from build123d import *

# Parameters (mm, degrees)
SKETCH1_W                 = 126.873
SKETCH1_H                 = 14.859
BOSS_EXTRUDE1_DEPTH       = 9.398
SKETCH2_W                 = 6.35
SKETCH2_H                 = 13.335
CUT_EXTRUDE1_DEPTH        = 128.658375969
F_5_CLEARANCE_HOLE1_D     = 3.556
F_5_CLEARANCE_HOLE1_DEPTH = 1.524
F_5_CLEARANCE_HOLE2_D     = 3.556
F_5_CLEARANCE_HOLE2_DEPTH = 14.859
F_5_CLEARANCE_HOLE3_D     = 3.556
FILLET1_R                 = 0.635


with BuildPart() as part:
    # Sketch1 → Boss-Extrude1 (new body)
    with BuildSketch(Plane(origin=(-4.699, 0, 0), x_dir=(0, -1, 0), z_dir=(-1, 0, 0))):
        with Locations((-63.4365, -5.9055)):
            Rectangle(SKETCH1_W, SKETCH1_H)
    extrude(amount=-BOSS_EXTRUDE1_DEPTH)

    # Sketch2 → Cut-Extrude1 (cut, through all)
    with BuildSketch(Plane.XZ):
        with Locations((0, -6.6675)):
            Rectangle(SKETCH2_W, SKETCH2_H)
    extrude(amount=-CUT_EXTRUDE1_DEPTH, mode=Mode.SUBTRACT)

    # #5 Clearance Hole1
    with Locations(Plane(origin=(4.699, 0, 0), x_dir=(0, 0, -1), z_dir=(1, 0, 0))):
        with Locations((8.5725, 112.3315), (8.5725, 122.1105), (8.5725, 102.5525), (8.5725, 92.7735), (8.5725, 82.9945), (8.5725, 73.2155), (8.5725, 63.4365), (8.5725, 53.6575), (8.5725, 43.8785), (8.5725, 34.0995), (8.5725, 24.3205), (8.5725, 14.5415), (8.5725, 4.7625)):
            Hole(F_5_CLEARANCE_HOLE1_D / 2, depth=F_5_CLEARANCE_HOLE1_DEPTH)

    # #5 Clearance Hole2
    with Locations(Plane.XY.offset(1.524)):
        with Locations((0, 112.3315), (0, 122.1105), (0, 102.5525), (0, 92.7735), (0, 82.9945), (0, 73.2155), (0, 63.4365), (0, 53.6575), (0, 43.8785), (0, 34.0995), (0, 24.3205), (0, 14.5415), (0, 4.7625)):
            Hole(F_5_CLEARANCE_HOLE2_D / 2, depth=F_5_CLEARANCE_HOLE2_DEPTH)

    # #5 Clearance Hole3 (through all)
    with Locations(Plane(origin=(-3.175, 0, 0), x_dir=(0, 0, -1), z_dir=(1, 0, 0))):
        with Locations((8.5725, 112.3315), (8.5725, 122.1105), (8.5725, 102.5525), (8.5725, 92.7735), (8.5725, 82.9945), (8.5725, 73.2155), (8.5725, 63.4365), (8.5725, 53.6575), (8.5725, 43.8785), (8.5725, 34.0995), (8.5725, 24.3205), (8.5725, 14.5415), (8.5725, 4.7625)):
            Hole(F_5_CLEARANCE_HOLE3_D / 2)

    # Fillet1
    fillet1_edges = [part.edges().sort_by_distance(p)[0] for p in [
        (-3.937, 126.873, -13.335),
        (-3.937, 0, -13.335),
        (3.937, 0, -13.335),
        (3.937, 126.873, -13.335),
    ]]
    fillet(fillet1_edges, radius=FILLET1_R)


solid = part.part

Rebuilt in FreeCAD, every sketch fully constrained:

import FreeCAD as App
import Part
import Sketcher
from FreeCAD import Vector
Q = App.Units.Quantity


def edges_at(feature, points):
    """Names of the edges that pass closest to the given points."""
    edges = feature.Shape.Edges
    near = lambda p: min(range(len(edges)), key=lambda i: edges[i].distToShape(Part.Vertex(*p))[0])
    return sorted({f"Edge{near(p) + 1}" for p in points})


def add_polygon(sketch, points):
    """Adds a closed chain of lines whose ends are joined by coincident constraints."""
    first, n = sketch.GeometryCount, len(points)
    for a, b in zip(points, points[1:] + points[:1]):
        sketch.addGeometry(Part.LineSegment(App.Vector(*a, 0), App.Vector(*b, 0)), False)
    for i in range(n):
        sketch.addConstraint(Sketcher.Constraint("Coincident", first + i, 2, first + (i + 1) % n, 1))

doc = App.newDocument("Part")
body = doc.addObject("PartDesign::Body", "Body")

sketch1 = body.newObject("Sketcher::SketchObject", "Sketch")
sketch1.AttachmentSupport = (doc.getObject("YZ_Plane"), [""])
sketch1.MapMode = "FlatFace"
sketch1.AttachmentOffset = App.Placement(Vector(0, 0, -0.185 * 25.4), App.Rotation())
add_polygon(sketch1, [(126.873, 1.524), (126.873, -13.335), (0, -13.335), (0, 1.524)])
sketch1.addConstraint([
    Sketcher.Constraint("Vertical", 0),
    Sketcher.Constraint("Horizontal", 1),
    Sketcher.Constraint("Vertical", 2),
    Sketcher.Constraint("Horizontal", 3),
    Sketcher.Constraint("PointOnObject", 1, 2, -2),
    Sketcher.Constraint("DistanceX", 1, 2, 1, 1, Q("4.995 in")),
    Sketcher.Constraint("DistanceY", 0, 2, 0, 1, Q("0.585 in")),
    Sketcher.Constraint("DistanceY", -1, 1, 2, 2, Q("0.06 in")),
])
pad1 = body.newObject("PartDesign::Pad", "Pad")
pad1.Profile = sketch1
pad1.Length = Q("0.37 in")

sketch2 = body.newObject("Sketcher::SketchObject", "Sketch001")
sketch2.AttachmentSupport = (doc.getObject("XZ_Plane"), [""])
sketch2.MapMode = "FlatFace"
add_polygon(sketch2, [(-3.175, 0), (-3.175, -13.335), (3.175, -13.335), (3.175, 0)])
sketch2.addConstraint([
    Sketcher.Constraint("Vertical", 0),
    Sketcher.Constraint("Horizontal", 1),
    Sketcher.Constraint("Vertical", 2),
    Sketcher.Constraint("Horizontal", 3),
    Sketcher.Constraint("Symmetric", 2, 2, 3, 2, -1, 1),
    Sketcher.Constraint("DistanceX", 1, 1, 1, 2, Q("0.25 in")),
    Sketcher.Constraint("DistanceY", 0, 2, 0, 1, Q("0.525 in")),
])
pocket1 = body.newObject("PartDesign::Pocket", "Pocket")
pocket1.Profile = sketch2
pocket1.Type = "ThroughAll"

sketch3 = body.newObject("Sketcher::SketchObject", "Sketch002")
sketch3.AttachmentSupport = (doc.getObject("YZ_Plane"), [""])
sketch3.MapMode = "FlatFace"
sketch3.AttachmentOffset = App.Placement(Vector(0, 0, 0.185 * 25.4), App.Rotation())
sketch3.addGeometry([
    Part.Circle(Vector(112.3315, -8.5725, 0), Vector(0, 0, 1), 1.778),
    Part.Circle(Vector(122.1105, -8.5725, 0), Vector(0, 0, 1), 1.778),
    Part.Circle(Vector(102.5525, -8.5725, 0), Vector(0, 0, 1), 1.778),
    Part.Circle(Vector(92.7735, -8.5725, 0), Vector(0, 0, 1), 1.778),
    Part.Circle(Vector(82.9945, -8.5725, 0), Vector(0, 0, 1), 1.778),
    Part.Circle(Vector(73.2155, -8.5725, 0), Vector(0, 0, 1), 1.778),
    Part.Circle(Vector(63.4365, -8.5725, 0), Vector(0, 0, 1), 1.778),
    Part.Circle(Vector(53.6575, -8.5725, 0), Vector(0, 0, 1), 1.778),
    Part.Circle(Vector(43.8785, -8.5725, 0), Vector(0, 0, 1), 1.778),
    Part.Circle(Vector(34.0995, -8.5725, 0), Vector(0, 0, 1), 1.778),
    Part.Circle(Vector(24.3205, -8.5725, 0), Vector(0, 0, 1), 1.778),
    Part.Circle(Vector(14.5415, -8.5725, 0), Vector(0, 0, 1), 1.778),
    Part.Circle(Vector(4.7625, -8.5725, 0), Vector(0, 0, 1), 1.778),
], False)
sketch3.addConstraint([
    Sketcher.Constraint("Equal", 0, 1),
    Sketcher.Constraint("Equal", 1, 2),
    Sketcher.Constraint("Equal", 2, 3),
    Sketcher.Constraint("Equal", 3, 4),
    Sketcher.Constraint("Equal", 4, 5),
    Sketcher.Constraint("Equal", 5, 6),
    Sketcher.Constraint("Equal", 6, 7),
    Sketcher.Constraint("Equal", 7, 8),
    Sketcher.Constraint("Equal", 8, 9),
    Sketcher.Constraint("Equal", 9, 10),
    Sketcher.Constraint("Equal", 10, 11),
    Sketcher.Constraint("Equal", 11, 12),
    Sketcher.Constraint("Horizontal", 0, 3, 1, 3),
    Sketcher.Constraint("Horizontal", 1, 3, 2, 3),
    Sketcher.Constraint("Horizontal", 2, 3, 3, 3),
    Sketcher.Constraint("Horizontal", 3, 3, 4, 3),
    Sketcher.Constraint("Horizontal", 4, 3, 5, 3),
    Sketcher.Constraint("Horizontal", 5, 3, 6, 3),
    Sketcher.Constraint("Horizontal", 6, 3, 7, 3),
    Sketcher.Constraint("Horizontal", 7, 3, 8, 3),
    Sketcher.Constraint("Horizontal", 8, 3, 9, 3),
    Sketcher.Constraint("Horizontal", 9, 3, 10, 3),
    Sketcher.Constraint("Horizontal", 10, 3, 11, 3),
    Sketcher.Constraint("Horizontal", 11, 3, 12, 3),
    Sketcher.Constraint("Diameter", 0, Q("0.14 in")),
    Sketcher.Constraint("DistanceX", 2, 3, 1, 3, Q("0.77 in")),
    Sketcher.Constraint("DistanceX", 3, 3, 0, 3, Q("0.77 in")),
    Sketcher.Constraint("DistanceX", 4, 3, 2, 3, Q("0.77 in")),
    Sketcher.Constraint("DistanceX", 5, 3, 3, 3, Q("0.77 in")),
    Sketcher.Constraint("DistanceX", 6, 3, 4, 3, Q("0.77 in")),
    Sketcher.Constraint("DistanceX", 7, 3, 5, 3, Q("0.77 in")),
    Sketcher.Constraint("DistanceX", 8, 3, 6, 3, Q("0.77 in")),
    Sketcher.Constraint("DistanceX", 9, 3, 7, 3, Q("0.77 in")),
    Sketcher.Constraint("DistanceX", 10, 3, 8, 3, Q("0.77 in")),
    Sketcher.Constraint("DistanceX", 11, 3, 9, 3, Q("0.77 in")),
    Sketcher.Constraint("DistanceX", 12, 3, 10, 3, Q("0.77 in")),
    Sketcher.Constraint("DistanceX", -1, 1, 12, 3, Q("0.1875 in")),
    Sketcher.Constraint("DistanceX", 0, 3, 1, 3, Q("0.385 in")),
    Sketcher.Constraint("DistanceY", 0, 3, -1, 1, Q("0.3375 in")),
])
doc.recompute()
hole = body.newObject("PartDesign::Hole", "Hole")
hole.Profile = sketch3
hole.ThreadType = "None"
hole.Diameter = Q("0.14 in")
hole.DepthType = "Dimension"
hole.Depth = Q("0.06 in")
hole.DrillPoint = "Flat"

sketch4 = body.newObject("Sketcher::SketchObject", "Sketch003")
sketch4.AttachmentSupport = (doc.getObject("XY_Plane"), [""])
sketch4.MapMode = "FlatFace"
sketch4.AttachmentOffset = App.Placement(Vector(0, 0, 0.06 * 25.4), App.Rotation())
sketch4.addGeometry([
    Part.Circle(Vector(0, 112.3315, 0), Vector(0, 0, 1), 1.778),
    Part.Circle(Vector(0, 122.1105, 0), Vector(0, 0, 1), 1.778),
    Part.Circle(Vector(0, 102.5525, 0), Vector(0, 0, 1), 1.778),
    Part.Circle(Vector(0, 92.7735, 0), Vector(0, 0, 1), 1.778),
    Part.Circle(Vector(0, 82.9945, 0), Vector(0, 0, 1), 1.778),
    Part.Circle(Vector(0, 73.2155, 0), Vector(0, 0, 1), 1.778),
    Part.Circle(Vector(0, 63.4365, 0), Vector(0, 0, 1), 1.778),
    Part.Circle(Vector(0, 53.6575, 0), Vector(0, 0, 1), 1.778),
    Part.Circle(Vector(0, 43.8785, 0), Vector(0, 0, 1), 1.778),
    Part.Circle(Vector(0, 34.0995, 0), Vector(0, 0, 1), 1.778),
    Part.Circle(Vector(0, 24.3205, 0), Vector(0, 0, 1), 1.778),
    Part.Circle(Vector(0, 14.5415, 0), Vector(0, 0, 1), 1.778),
    Part.Circle(Vector(0, 4.7625, 0), Vector(0, 0, 1), 1.778),
], False)
sketch4.addConstraint([
    Sketcher.Constraint("Equal", 0, 1),
    Sketcher.Constraint("Equal", 1, 2),
    Sketcher.Constraint("Equal", 2, 3),
    Sketcher.Constraint("Equal", 3, 4),
    Sketcher.Constraint("Equal", 4, 5),
    Sketcher.Constraint("Equal", 5, 6),
    Sketcher.Constraint("Equal", 6, 7),
    Sketcher.Constraint("Equal", 7, 8),
    Sketcher.Constraint("Equal", 8, 9),
    Sketcher.Constraint("Equal", 9, 10),
    Sketcher.Constraint("Equal", 10, 11),
    Sketcher.Constraint("Equal", 11, 12),
    Sketcher.Constraint("PointOnObject", 0, 3, -2),
    Sketcher.Constraint("PointOnObject", 1, 3, -2),
    Sketcher.Constraint("PointOnObject", 2, 3, -2),
    Sketcher.Constraint("PointOnObject", 3, 3, -2),
    Sketcher.Constraint("PointOnObject", 4, 3, -2),
    Sketcher.Constraint("PointOnObject", 5, 3, -2),
    Sketcher.Constraint("PointOnObject", 6, 3, -2),
    Sketcher.Constraint("PointOnObject", 7, 3, -2),
    Sketcher.Constraint("PointOnObject", 8, 3, -2),
    Sketcher.Constraint("PointOnObject", 9, 3, -2),
    Sketcher.Constraint("PointOnObject", 10, 3, -2),
    Sketcher.Constraint("PointOnObject", 11, 3, -2),
    Sketcher.Constraint("PointOnObject", 12, 3, -2),
    Sketcher.Constraint("Diameter", 0, Q("0.14 in")),
    Sketcher.Constraint("DistanceY", 2, 3, 1, 3, Q("0.77 in")),
    Sketcher.Constraint("DistanceY", 3, 3, 0, 3, Q("0.77 in")),
    Sketcher.Constraint("DistanceY", 4, 3, 2, 3, Q("0.77 in")),
    Sketcher.Constraint("DistanceY", 5, 3, 3, 3, Q("0.77 in")),
    Sketcher.Constraint("DistanceY", 6, 3, 4, 3, Q("0.77 in")),
    Sketcher.Constraint("DistanceY", 7, 3, 5, 3, Q("0.77 in")),
    Sketcher.Constraint("DistanceY", 8, 3, 6, 3, Q("0.77 in")),
    Sketcher.Constraint("DistanceY", 9, 3, 7, 3, Q("0.77 in")),
    Sketcher.Constraint("DistanceY", 10, 3, 8, 3, Q("0.77 in")),
    Sketcher.Constraint("DistanceY", 11, 3, 9, 3, Q("0.77 in")),
    Sketcher.Constraint("DistanceY", 12, 3, 10, 3, Q("0.77 in")),
    Sketcher.Constraint("DistanceY", -1, 1, 12, 3, Q("0.1875 in")),
    Sketcher.Constraint("DistanceY", 0, 3, 1, 3, Q("0.385 in")),
])
doc.recompute()
hole2 = body.newObject("PartDesign::Hole", "Hole001")
hole2.Profile = sketch4
hole2.ThreadType = "None"
hole2.Diameter = Q("0.14 in")
hole2.DepthType = "Dimension"
hole2.Depth = Q("0.585 in")
hole2.DrillPoint = "Flat"

sketch5 = body.newObject("Sketcher::SketchObject", "Sketch004")
sketch5.AttachmentSupport = (doc.getObject("YZ_Plane"), [""])
sketch5.MapMode = "FlatFace"
sketch5.AttachmentOffset = App.Placement(Vector(0, 0, -0.125 * 25.4), App.Rotation())
sketch5.addGeometry([
    Part.Circle(Vector(112.3315, -8.5725, 0), Vector(0, 0, 1), 1.778),
    Part.Circle(Vector(122.1105, -8.5725, 0), Vector(0, 0, 1), 1.778),
    Part.Circle(Vector(102.5525, -8.5725, 0), Vector(0, 0, 1), 1.778),
    Part.Circle(Vector(92.7735, -8.5725, 0), Vector(0, 0, 1), 1.778),
    Part.Circle(Vector(82.9945, -8.5725, 0), Vector(0, 0, 1), 1.778),
    Part.Circle(Vector(73.2155, -8.5725, 0), Vector(0, 0, 1), 1.778),
    Part.Circle(Vector(63.4365, -8.5725, 0), Vector(0, 0, 1), 1.778),
    Part.Circle(Vector(53.6575, -8.5725, 0), Vector(0, 0, 1), 1.778),
    Part.Circle(Vector(43.8785, -8.5725, 0), Vector(0, 0, 1), 1.778),
    Part.Circle(Vector(34.0995, -8.5725, 0), Vector(0, 0, 1), 1.778),
    Part.Circle(Vector(24.3205, -8.5725, 0), Vector(0, 0, 1), 1.778),
    Part.Circle(Vector(14.5415, -8.5725, 0), Vector(0, 0, 1), 1.778),
    Part.Circle(Vector(4.7625, -8.5725, 0), Vector(0, 0, 1), 1.778),
], False)
sketch5.addConstraint([
    Sketcher.Constraint("Equal", 0, 1),
    Sketcher.Constraint("Equal", 1, 2),
    Sketcher.Constraint("Equal", 2, 3),
    Sketcher.Constraint("Equal", 3, 4),
    Sketcher.Constraint("Equal", 4, 5),
    Sketcher.Constraint("Equal", 5, 6),
    Sketcher.Constraint("Equal", 6, 7),
    Sketcher.Constraint("Equal", 7, 8),
    Sketcher.Constraint("Equal", 8, 9),
    Sketcher.Constraint("Equal", 9, 10),
    Sketcher.Constraint("Equal", 10, 11),
    Sketcher.Constraint("Equal", 11, 12),
    Sketcher.Constraint("Horizontal", 0, 3, 1, 3),
    Sketcher.Constraint("Horizontal", 1, 3, 2, 3),
    Sketcher.Constraint("Horizontal", 2, 3, 3, 3),
    Sketcher.Constraint("Horizontal", 3, 3, 4, 3),
    Sketcher.Constraint("Horizontal", 4, 3, 5, 3),
    Sketcher.Constraint("Horizontal", 5, 3, 6, 3),
    Sketcher.Constraint("Horizontal", 6, 3, 7, 3),
    Sketcher.Constraint("Horizontal", 7, 3, 8, 3),
    Sketcher.Constraint("Horizontal", 8, 3, 9, 3),
    Sketcher.Constraint("Horizontal", 9, 3, 10, 3),
    Sketcher.Constraint("Horizontal", 10, 3, 11, 3),
    Sketcher.Constraint("Horizontal", 11, 3, 12, 3),
    Sketcher.Constraint("Diameter", 0, Q("0.14 in")),
    Sketcher.Constraint("DistanceX", 2, 3, 1, 3, Q("0.77 in")),
    Sketcher.Constraint("DistanceX", 3, 3, 0, 3, Q("0.77 in")),
    Sketcher.Constraint("DistanceX", 4, 3, 2, 3, Q("0.77 in")),
    Sketcher.Constraint("DistanceX", 5, 3, 3, 3, Q("0.77 in")),
    Sketcher.Constraint("DistanceX", 6, 3, 4, 3, Q("0.77 in")),
    Sketcher.Constraint("DistanceX", 7, 3, 5, 3, Q("0.77 in")),
    Sketcher.Constraint("DistanceX", 8, 3, 6, 3, Q("0.77 in")),
    Sketcher.Constraint("DistanceX", 9, 3, 7, 3, Q("0.77 in")),
    Sketcher.Constraint("DistanceX", 10, 3, 8, 3, Q("0.77 in")),
    Sketcher.Constraint("DistanceX", 11, 3, 9, 3, Q("0.77 in")),
    Sketcher.Constraint("DistanceX", 12, 3, 10, 3, Q("0.77 in")),
    Sketcher.Constraint("DistanceX", -1, 1, 12, 3, Q("0.1875 in")),
    Sketcher.Constraint("DistanceX", 0, 3, 1, 3, Q("0.385 in")),
    Sketcher.Constraint("DistanceY", 0, 3, -1, 1, Q("0.3375 in")),
])
doc.recompute()
hole3 = body.newObject("PartDesign::Hole", "Hole002")
hole3.Profile = sketch5
hole3.ThreadType = "None"
hole3.Diameter = Q("0.14 in")
hole3.DepthType = "ThroughAll"
doc.recompute()

fillet = body.newObject("PartDesign::Fillet", "Fillet")
fillet.Base = (hole3, edges_at(hole3, [
    (-3.937, 126.873, -13.335),
    (-3.937, 0, -13.335),
    (3.937, 0, -13.335),
    (3.937, 126.873, -13.335),
]))
fillet.Radius = Q("0.025 in")

doc.recompute()
